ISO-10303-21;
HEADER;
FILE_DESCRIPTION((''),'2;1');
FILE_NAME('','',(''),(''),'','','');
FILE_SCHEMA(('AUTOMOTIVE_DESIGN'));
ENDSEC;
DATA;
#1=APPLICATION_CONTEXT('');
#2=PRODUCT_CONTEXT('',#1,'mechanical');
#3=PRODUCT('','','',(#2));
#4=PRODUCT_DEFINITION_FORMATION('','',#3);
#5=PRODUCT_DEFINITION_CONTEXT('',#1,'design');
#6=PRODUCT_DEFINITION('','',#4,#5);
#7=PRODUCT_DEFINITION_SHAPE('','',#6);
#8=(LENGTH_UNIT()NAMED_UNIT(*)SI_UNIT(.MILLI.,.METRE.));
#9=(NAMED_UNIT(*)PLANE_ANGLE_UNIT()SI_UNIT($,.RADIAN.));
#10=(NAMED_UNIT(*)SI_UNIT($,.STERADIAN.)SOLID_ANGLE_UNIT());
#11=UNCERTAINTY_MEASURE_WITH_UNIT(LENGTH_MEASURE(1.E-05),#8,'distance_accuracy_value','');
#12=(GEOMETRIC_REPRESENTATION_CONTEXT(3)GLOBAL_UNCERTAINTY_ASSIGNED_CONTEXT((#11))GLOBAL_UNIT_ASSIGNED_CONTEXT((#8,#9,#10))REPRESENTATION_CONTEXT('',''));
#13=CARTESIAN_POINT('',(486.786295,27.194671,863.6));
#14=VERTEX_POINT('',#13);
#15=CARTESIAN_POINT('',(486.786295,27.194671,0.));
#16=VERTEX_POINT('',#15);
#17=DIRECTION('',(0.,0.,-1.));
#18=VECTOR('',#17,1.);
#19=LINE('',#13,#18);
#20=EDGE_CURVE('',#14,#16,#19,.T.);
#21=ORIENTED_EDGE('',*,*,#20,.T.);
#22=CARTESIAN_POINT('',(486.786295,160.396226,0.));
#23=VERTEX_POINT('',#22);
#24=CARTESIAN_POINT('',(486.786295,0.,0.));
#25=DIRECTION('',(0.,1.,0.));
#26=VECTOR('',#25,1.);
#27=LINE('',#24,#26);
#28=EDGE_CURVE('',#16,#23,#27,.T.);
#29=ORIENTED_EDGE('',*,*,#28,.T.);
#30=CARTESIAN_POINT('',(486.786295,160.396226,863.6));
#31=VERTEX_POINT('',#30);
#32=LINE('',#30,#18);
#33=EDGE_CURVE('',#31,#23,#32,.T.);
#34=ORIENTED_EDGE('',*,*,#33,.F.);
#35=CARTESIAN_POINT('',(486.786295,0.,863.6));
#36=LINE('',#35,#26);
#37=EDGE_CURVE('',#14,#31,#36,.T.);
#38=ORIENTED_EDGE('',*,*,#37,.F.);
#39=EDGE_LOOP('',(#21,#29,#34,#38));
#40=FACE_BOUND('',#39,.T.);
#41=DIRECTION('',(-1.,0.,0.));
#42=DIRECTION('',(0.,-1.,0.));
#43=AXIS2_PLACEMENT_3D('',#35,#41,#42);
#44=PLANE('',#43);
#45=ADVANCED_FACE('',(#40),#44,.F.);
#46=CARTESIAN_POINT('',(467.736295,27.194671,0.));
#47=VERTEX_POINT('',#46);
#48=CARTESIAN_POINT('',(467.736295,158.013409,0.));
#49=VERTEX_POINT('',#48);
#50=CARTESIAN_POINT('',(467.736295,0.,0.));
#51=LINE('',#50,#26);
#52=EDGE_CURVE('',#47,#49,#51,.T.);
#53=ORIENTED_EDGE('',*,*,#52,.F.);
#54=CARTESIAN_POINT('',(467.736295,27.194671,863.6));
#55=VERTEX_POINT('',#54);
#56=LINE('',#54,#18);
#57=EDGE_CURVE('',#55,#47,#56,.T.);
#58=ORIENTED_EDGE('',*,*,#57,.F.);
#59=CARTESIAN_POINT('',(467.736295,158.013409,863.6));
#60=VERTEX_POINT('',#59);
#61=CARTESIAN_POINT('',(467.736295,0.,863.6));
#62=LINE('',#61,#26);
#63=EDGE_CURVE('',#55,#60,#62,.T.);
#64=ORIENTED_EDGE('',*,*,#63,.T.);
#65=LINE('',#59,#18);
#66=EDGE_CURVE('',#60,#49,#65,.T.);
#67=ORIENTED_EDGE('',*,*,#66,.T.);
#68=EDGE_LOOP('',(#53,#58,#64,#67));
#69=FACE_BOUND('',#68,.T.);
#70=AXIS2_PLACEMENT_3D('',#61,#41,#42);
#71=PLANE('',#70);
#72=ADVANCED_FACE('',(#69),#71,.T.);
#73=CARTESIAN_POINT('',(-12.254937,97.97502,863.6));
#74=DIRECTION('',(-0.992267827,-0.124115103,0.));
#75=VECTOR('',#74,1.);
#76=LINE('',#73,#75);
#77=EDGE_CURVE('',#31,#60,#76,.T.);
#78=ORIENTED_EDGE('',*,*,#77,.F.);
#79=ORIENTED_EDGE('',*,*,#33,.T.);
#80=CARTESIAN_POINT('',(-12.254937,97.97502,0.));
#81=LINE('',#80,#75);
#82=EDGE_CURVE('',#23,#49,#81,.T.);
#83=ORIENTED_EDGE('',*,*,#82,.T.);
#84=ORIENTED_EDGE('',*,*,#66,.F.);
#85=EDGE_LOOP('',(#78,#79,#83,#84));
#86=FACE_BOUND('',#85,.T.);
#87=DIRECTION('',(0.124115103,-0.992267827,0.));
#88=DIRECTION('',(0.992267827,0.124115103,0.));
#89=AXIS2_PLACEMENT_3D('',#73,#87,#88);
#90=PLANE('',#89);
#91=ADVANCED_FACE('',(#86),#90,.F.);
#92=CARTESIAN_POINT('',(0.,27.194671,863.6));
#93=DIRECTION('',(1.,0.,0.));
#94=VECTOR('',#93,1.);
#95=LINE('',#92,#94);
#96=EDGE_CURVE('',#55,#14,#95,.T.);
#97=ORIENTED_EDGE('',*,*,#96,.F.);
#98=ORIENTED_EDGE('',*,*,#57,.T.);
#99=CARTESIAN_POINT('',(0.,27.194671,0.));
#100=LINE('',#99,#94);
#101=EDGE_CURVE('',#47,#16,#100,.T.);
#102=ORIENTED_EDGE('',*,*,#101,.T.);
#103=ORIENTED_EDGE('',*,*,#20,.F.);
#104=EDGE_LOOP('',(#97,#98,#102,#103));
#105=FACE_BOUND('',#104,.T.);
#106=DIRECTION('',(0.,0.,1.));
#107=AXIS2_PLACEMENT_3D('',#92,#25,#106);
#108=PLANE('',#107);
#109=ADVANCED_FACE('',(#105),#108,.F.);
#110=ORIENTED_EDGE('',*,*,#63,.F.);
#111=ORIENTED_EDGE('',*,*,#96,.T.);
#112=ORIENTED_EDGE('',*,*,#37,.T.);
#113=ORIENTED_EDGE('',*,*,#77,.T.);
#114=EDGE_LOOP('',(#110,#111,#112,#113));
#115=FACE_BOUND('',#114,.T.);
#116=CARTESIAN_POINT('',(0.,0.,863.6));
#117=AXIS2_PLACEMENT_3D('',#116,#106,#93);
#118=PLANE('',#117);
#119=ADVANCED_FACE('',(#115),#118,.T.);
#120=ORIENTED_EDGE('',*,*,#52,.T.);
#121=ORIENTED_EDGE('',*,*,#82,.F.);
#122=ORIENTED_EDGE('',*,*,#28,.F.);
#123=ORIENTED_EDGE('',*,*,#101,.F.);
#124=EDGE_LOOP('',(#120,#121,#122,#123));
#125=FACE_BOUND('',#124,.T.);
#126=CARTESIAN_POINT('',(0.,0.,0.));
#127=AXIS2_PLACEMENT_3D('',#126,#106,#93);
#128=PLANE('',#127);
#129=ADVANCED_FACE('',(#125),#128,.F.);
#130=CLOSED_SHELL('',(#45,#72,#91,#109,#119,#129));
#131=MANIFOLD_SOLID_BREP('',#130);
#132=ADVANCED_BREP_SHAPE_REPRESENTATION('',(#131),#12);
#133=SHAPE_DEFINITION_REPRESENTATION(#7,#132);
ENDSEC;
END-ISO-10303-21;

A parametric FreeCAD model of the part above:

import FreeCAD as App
import Part
import Sketcher
from FreeCAD import Vector
Q = App.Units.Quantity

doc = App.newDocument("Part")
params = doc.addObject("Spreadsheet::Sheet", "Params")
for row, (alias, value) in enumerate([
    ("sketch1_width", "0.75 in"),
    ("pad1_length", "34 in"),
], start=1):
    params.set(f"A{row}", alias)
    params.set(f"B{row}", "=" + value)
    params.setAlias(f"B{row}", alias)

body = doc.addObject("PartDesign::Body", "Body")

sketch1 = body.newObject("Sketcher::SketchObject", "Sketch")
sketch1.AttachmentSupport = (doc.getObject("XY_Plane"), [""])
sketch1.MapMode = "FlatFace"
sketch1.addGeometry(Part.LineSegment(Vector(468, 158, 0), Vector(468, 27, 0)), False)
sketch1.addGeometry(Part.LineSegment(Vector(468, 27, 0), Vector(487, 27, 0)), False)
sketch1.addGeometry(Part.LineSegment(Vector(487, 27, 0), Vector(487, 160, 0)), False)
sketch1.addGeometry(Part.LineSegment(Vector(487, 160, 0), Vector(468, 158, 0)), False)
sketch1.addConstraint(Sketcher.Constraint("Coincident", 0, 2, 1, 1))
sketch1.addConstraint(Sketcher.Constraint("Coincident", 1, 2, 2, 1))
sketch1.addConstraint(Sketcher.Constraint("Coincident", 2, 2, 3, 1))
sketch1.addConstraint(Sketcher.Constraint("Coincident", 3, 2, 0, 1))
sketch1.addConstraint(Sketcher.Constraint("Vertical", 0))
sketch1.addConstraint(Sketcher.Constraint("Horizontal", 1))
sketch1.addConstraint(Sketcher.Constraint("Vertical", 2))
sketch1.addConstraint(Sketcher.Constraint("DistanceX", 1, 1, 1, 2, Q("0.75 in")))
sketch1.addConstraint(Sketcher.Constraint("DistanceY", 0, 2, 0, 1, 130.818737))
sketch1.addConstraint(Sketcher.Constraint("DistanceY", 2, 1, 2, 2, 133.201554))
sketch1.addConstraint(Sketcher.Constraint("DistanceY", -1, 1, 0, 2, 27.194671))
sketch1.addConstraint(Sketcher.Constraint("DistanceX", -1, 1, 0, 2, 467.736295))
sketch1.setExpression("Constraints[7]", "Params.sketch1_width")
pad1 = body.newObject("PartDesign::Pad", "Pad")
pad1.Profile = sketch1
pad1.setExpression("Length", "Params.pad1_length")

doc.recompute()
